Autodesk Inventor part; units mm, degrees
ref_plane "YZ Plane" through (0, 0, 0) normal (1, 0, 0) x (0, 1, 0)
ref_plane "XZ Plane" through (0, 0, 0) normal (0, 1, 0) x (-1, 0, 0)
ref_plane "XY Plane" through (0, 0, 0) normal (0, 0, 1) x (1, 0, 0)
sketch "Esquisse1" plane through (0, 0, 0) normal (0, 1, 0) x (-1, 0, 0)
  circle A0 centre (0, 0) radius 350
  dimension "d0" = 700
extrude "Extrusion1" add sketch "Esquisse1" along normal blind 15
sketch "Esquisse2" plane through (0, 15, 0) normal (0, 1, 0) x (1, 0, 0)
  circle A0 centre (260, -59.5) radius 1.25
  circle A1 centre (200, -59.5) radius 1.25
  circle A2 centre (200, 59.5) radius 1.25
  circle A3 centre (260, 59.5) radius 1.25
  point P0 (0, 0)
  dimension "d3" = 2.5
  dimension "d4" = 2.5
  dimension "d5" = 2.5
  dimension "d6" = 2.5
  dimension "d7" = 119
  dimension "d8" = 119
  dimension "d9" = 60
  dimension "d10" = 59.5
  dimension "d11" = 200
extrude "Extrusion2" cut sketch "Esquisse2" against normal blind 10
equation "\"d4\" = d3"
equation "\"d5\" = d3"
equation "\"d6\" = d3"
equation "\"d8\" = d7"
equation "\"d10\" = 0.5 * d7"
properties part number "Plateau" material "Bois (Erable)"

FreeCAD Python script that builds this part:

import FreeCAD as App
import Part
import Sketcher
from FreeCAD import Vector
Q = App.Units.Quantity

doc = App.newDocument("Part")
body = doc.addObject("PartDesign::Body", "Body")

# Sketch on XZ plane
sketch1 = doc.addObject("Sketcher::SketchObject", "Sketch")
body.addObject(sketch1)
sketch1.AttachmentSupport = (doc.XZ_Plane, [""])
sketch1.MapMode = "FlatFace"
sketch1.addGeometry(Part.Circle(Vector(0, 0, 0), Vector(0, 0, 1), 350), False)
sketch1.addConstraint(Sketcher.Constraint("Coincident", 0, 3, -1, 1))
sketch1.addConstraint(Sketcher.Constraint("Diameter", 0, Q("700 mm")))
pad1 = doc.addObject("PartDesign::Pad", "Pad")
body.addObject(pad1)
pad1.Profile = sketch1
pad1.Length = 15
pad1.Reversed = True

# Sketch on XZ plane
sketch2 = doc.addObject("Sketcher::SketchObject", "Sketch001")
body.addObject(sketch2)
sketch2.AttachmentSupport = (doc.XZ_Plane, [""])
sketch2.MapMode = "FlatFace"
sketch2.AttachmentOffset = App.Placement(Vector(0, 0, -15), App.Rotation())
sketch2.addGeometry(Part.Circle(Vector(260, 59.5, 0), Vector(0, 0, 1), 1.2), False)
sketch2.addGeometry(Part.Circle(Vector(200, 59.5, 0), Vector(0, 0, 1), 1.2), False)
sketch2.addGeometry(Part.Circle(Vector(200, -59.5, 0), Vector(0, 0, 1), 1.2), False)
sketch2.addGeometry(Part.Circle(Vector(260, -59.5, 0), Vector(0, 0, 1), 1.2), False)
sketch2.addConstraint(Sketcher.Constraint("Equal", 0, 1))
sketch2.addConstraint(Sketcher.Constraint("Equal", 1, 2))
sketch2.addConstraint(Sketcher.Constraint("Equal", 2, 3))
sketch2.addConstraint(Sketcher.Constraint("Symmetric", 1, 3, 2, 3, -1))
sketch2.addConstraint(Sketcher.Constraint("Symmetric", 0, 3, 3, 3, -1))
sketch2.addConstraint(Sketcher.Constraint("Horizontal", 0, 3, 1, 3))
sketch2.addConstraint(Sketcher.Constraint("Diameter", 0, Q("2.5 mm")))
sketch2.addConstraint(Sketcher.Constraint("DistanceX", -1, 1, 1, 3, Q("200 mm")))
sketch2.addConstraint(Sketcher.Constraint("DistanceX", 1, 3, 0, 3, Q("60 mm")))
sketch2.addConstraint(Sketcher.Constraint("DistanceY", 2, 3, 1, 3, Q("119 mm")))
pocket1 = doc.addObject("PartDesign::Pocket", "Pocket")
body.addObject(pocket1)
pocket1.Profile = sketch2
pocket1.Length = 10
pocket1.Reversed = True

doc.recompute()
